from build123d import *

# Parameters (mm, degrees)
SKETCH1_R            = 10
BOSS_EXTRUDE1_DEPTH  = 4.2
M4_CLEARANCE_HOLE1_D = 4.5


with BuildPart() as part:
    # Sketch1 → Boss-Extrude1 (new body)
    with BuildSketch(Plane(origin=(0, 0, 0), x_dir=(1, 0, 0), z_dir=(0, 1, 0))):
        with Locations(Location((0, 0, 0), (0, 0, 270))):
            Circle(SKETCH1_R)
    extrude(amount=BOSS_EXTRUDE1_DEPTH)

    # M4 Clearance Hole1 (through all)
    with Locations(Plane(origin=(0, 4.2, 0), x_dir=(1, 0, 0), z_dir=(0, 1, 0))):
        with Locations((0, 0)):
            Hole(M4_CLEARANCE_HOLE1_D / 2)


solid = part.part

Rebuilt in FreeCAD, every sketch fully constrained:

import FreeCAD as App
import Part
import Sketcher

V = App.Vector

doc = App.newDocument("Part")
params = doc.addObject("Spreadsheet::Sheet", "Params")
for row, (alias, value) in enumerate([
    ("sketch1_diameter", "20 mm"),
    ("pad1_length", "4.2 mm"),
    ("sketch2_diameter", "4.5 mm"),
    ("hole_diameter", "4.5 mm"),
], start=1):
    params.set(f"A{row}", alias)
    params.set(f"B{row}", "=" + value)
    params.setAlias(f"B{row}", alias)

body = doc.addObject("PartDesign::Body", "Body")

sketch1 = doc.addObject("Sketcher::SketchObject", "Sketch")
body.addObject(sketch1)
sketch1.AttachmentSupport = (doc.XZ_Plane, [""])
sketch1.MapMode = "FlatFace"
sketch1.addGeometry(Part.Circle(V(0, 0, 0), V(0, 0, 1), 10), False)
sketch1.addConstraint([
    Sketcher.Constraint("Coincident", 0, 3, -1, 1),
    Sketcher.Constraint("Diameter", 0, 20.0),
])
sketch1.setExpression("Constraints[1]", "Params.sketch1_diameter")
pad1 = doc.addObject("PartDesign::Pad", "Pad")
body.addObject(pad1)
pad1.Profile = sketch1
pad1.setExpression("Length", "Params.pad1_length")
pad1.Reversed = True

sketch2 = doc.addObject("Sketcher::SketchObject", "Sketch001")
body.addObject(sketch2)
sketch2.AttachmentSupport = (doc.XZ_Plane, [""])
sketch2.MapMode = "FlatFace"
sketch2.AttachmentOffset = App.Placement(V(0, 0, -4.2), App.Rotation())
sketch2.addGeometry(Part.Circle(V(0, 0, 0), V(0, 0, 1), 2.2), False)
sketch2.addConstraint([
    Sketcher.Constraint("Coincident", 0, 3, -1, 1),
    Sketcher.Constraint("Diameter", 0, 4.5),
])
sketch2.setExpression("Constraints[1]", "Params.sketch2_diameter")
doc.recompute()
hole = doc.addObject("PartDesign::Hole", "Hole")
body.addObject(hole)
hole.Profile = sketch2
hole.ThreadType = "None"
hole.setExpression("Diameter", "Params.hole_diameter")
hole.DepthType = "ThroughAll"
hole.Reversed = True

doc.recompute()
